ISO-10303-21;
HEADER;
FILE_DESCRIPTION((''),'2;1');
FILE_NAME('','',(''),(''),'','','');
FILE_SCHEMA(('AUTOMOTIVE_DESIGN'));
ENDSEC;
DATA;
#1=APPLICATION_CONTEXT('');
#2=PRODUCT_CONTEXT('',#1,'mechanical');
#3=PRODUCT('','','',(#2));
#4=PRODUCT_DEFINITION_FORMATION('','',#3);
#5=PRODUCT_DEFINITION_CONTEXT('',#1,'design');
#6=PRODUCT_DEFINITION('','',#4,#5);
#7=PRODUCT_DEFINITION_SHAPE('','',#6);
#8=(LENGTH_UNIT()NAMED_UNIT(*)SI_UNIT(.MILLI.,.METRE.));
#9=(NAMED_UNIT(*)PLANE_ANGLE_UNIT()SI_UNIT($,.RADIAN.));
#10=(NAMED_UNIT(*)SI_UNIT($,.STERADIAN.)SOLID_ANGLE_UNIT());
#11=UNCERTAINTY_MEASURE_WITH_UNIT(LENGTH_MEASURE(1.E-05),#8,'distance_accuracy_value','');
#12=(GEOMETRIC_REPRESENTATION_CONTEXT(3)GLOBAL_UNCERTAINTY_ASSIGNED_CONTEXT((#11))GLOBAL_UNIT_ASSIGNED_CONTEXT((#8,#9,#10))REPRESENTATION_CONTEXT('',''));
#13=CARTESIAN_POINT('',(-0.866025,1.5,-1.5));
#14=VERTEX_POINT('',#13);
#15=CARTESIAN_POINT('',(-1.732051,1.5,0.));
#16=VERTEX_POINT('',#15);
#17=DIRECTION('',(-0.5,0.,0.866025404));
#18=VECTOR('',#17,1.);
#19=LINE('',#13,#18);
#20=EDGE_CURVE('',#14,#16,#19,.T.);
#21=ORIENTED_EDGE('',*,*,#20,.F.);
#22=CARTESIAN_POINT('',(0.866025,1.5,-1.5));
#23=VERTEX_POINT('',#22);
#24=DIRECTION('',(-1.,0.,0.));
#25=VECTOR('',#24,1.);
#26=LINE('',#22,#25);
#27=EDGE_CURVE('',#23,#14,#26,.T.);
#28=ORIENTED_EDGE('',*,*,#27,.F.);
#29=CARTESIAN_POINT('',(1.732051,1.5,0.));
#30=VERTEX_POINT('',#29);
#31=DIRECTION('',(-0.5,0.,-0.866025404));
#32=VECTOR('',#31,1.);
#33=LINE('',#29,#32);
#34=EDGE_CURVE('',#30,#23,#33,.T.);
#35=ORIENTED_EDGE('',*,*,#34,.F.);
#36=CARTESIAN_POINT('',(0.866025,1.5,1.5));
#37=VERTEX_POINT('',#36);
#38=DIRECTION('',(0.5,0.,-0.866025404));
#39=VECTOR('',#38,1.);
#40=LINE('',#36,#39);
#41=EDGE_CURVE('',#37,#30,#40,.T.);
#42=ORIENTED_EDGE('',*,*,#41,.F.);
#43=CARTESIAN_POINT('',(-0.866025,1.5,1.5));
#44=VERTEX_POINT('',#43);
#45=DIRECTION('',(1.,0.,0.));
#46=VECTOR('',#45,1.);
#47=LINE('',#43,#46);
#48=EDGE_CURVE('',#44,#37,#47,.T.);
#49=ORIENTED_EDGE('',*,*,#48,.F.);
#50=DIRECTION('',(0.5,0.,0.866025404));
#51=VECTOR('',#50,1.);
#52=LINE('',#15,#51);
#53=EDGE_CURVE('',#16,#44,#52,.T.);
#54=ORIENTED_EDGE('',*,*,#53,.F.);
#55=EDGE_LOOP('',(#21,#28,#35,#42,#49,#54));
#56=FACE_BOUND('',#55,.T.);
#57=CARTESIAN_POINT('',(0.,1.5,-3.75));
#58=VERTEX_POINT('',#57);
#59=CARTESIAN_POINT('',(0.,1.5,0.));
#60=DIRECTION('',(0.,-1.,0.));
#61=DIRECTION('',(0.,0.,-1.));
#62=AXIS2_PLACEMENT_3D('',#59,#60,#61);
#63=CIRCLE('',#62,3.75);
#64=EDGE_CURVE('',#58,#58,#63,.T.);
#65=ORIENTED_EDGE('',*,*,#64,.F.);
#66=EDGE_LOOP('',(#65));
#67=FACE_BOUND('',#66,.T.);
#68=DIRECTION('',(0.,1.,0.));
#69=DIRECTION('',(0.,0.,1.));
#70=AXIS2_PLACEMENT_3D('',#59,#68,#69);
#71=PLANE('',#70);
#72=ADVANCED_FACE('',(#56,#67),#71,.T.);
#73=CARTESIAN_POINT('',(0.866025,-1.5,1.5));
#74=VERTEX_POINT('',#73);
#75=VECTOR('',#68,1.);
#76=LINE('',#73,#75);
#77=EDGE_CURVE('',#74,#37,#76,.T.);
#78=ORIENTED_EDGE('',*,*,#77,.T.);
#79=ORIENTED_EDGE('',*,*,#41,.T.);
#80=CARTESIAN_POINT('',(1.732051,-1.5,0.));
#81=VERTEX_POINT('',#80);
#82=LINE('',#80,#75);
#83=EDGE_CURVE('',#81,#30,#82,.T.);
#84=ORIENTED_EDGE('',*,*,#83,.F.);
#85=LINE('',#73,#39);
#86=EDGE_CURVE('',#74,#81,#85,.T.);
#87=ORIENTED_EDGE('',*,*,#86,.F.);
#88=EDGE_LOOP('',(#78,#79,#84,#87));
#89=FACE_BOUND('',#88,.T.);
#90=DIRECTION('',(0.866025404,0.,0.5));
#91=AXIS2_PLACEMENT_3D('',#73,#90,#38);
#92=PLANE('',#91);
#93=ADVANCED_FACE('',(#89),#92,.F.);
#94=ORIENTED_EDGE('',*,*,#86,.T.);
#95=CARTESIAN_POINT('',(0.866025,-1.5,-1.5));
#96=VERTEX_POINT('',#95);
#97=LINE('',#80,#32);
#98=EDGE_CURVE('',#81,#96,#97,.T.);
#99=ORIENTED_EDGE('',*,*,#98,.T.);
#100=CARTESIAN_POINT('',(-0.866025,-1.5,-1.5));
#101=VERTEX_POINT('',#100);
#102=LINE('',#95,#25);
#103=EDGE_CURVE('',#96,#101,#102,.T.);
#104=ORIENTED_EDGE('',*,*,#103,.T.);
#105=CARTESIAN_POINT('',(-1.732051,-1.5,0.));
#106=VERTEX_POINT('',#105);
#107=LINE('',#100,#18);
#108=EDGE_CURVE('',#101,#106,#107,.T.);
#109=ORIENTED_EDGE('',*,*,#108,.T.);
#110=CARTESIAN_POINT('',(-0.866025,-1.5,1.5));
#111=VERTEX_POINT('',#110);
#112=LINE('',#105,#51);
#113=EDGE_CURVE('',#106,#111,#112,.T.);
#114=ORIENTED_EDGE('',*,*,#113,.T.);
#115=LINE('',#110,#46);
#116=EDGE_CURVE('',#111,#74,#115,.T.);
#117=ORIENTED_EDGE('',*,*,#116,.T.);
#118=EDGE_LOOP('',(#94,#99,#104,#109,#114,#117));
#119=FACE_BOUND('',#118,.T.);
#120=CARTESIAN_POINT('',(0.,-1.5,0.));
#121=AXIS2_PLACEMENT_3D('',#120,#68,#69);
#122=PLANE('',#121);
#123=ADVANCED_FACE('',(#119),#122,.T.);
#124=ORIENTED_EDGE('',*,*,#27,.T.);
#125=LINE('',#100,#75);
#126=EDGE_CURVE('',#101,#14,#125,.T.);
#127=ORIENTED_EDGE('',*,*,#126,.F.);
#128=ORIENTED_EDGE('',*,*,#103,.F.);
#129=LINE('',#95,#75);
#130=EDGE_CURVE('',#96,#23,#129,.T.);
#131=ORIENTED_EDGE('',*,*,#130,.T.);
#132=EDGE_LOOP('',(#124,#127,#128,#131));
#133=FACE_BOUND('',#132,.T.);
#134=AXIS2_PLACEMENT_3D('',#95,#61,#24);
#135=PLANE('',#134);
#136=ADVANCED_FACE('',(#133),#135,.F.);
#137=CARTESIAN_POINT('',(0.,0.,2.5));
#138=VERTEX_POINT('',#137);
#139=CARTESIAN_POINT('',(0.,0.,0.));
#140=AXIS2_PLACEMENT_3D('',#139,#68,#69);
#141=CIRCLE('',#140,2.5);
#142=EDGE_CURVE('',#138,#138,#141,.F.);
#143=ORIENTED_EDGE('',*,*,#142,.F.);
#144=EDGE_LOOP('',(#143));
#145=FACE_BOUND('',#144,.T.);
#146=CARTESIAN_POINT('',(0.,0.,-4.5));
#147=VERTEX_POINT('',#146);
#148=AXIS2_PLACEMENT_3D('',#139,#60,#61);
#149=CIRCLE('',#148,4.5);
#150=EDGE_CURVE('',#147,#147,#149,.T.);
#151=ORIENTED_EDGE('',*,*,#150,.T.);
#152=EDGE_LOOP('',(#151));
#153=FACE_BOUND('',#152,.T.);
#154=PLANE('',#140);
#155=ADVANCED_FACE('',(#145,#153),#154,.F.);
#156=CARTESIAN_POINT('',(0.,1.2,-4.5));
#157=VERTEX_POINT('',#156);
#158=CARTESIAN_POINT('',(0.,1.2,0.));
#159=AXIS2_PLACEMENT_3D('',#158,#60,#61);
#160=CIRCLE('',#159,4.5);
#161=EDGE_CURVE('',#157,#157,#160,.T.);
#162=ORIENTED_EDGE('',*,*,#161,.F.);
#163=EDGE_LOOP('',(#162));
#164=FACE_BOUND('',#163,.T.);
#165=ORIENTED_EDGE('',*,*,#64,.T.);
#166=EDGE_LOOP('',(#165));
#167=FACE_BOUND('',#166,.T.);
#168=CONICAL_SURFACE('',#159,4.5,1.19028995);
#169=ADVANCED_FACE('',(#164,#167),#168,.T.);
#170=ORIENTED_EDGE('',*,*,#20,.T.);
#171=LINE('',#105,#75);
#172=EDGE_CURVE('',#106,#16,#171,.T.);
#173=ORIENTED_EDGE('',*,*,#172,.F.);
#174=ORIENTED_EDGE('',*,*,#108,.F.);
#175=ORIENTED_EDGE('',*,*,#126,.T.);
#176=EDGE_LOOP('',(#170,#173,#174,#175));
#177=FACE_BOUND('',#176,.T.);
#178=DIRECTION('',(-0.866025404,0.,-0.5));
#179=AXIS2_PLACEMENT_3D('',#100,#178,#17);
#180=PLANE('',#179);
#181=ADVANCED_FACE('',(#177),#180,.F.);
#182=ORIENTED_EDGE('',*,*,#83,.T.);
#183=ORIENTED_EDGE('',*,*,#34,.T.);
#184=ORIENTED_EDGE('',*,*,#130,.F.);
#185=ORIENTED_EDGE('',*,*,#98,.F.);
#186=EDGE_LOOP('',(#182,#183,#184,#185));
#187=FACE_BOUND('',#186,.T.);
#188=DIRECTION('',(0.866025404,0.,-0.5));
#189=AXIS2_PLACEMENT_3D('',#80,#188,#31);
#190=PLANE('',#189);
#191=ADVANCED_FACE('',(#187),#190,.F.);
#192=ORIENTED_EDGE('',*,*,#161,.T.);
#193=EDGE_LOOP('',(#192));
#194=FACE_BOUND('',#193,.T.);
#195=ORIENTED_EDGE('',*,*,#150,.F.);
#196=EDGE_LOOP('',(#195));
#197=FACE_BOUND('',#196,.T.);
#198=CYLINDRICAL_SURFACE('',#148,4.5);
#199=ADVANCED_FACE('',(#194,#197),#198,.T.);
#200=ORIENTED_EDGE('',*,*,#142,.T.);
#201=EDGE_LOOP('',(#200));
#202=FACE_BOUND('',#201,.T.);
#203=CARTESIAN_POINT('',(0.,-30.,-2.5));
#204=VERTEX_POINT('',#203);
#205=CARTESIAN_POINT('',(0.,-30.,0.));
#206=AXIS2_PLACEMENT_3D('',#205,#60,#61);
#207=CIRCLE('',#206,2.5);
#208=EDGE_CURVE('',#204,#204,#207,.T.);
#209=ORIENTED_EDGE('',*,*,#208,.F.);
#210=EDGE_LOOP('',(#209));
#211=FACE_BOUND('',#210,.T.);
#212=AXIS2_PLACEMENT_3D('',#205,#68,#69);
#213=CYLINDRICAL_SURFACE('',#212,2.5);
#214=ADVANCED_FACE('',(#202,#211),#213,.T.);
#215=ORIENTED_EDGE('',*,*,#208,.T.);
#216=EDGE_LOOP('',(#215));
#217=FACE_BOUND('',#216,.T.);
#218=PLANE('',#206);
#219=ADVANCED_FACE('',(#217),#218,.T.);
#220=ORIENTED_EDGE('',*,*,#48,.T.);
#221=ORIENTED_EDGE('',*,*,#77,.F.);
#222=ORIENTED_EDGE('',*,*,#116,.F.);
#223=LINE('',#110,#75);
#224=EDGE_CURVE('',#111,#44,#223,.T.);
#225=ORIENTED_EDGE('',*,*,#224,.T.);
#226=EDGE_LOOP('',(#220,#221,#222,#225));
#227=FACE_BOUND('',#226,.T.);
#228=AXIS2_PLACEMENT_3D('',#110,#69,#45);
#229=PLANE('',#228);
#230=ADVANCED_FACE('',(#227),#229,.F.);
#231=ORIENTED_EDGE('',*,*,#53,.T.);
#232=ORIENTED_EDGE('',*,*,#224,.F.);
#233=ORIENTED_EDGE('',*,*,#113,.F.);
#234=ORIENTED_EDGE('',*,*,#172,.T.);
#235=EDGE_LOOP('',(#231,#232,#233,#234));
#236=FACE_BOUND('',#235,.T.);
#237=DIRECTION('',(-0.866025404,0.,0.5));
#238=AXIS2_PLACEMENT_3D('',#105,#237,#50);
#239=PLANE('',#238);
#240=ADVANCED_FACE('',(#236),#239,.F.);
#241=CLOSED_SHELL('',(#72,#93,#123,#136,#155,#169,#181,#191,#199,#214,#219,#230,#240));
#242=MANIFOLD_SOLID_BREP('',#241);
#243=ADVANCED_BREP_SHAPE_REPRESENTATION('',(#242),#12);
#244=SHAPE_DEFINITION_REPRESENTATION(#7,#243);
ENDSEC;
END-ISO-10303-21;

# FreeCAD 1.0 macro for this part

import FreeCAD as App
import Part
import Sketcher
from FreeCAD import Vector
Q = App.Units.Quantity


def add_polygon(sketch, points):
    """Adds a closed chain of lines whose ends are joined by coincident constraints."""
    first, n = sketch.GeometryCount, len(points)
    for a, b in zip(points, points[1:] + points[:1]):
        sketch.addGeometry(Part.LineSegment(App.Vector(*a, 0), App.Vector(*b, 0)), False)
    for i in range(n):
        sketch.addConstraint(Sketcher.Constraint("Coincident", first + i, 2, first + (i + 1) % n, 1))

doc = App.newDocument("Part")
body = doc.addObject("PartDesign::Body", "Body")

# Sketch on XY plane
sketch1 = body.newObject("Sketcher::SketchObject", "Sketch")
sketch1.AttachmentSupport = (doc.getObject("XY_Plane"), [""])
sketch1.MapMode = "FlatFace"
add_polygon(sketch1, [(0, 0), (0, 1.5), (-3.8, 1.5), (-4.5, 1.2), (-4.5, 0)])  # lines 0-4
sketch1.addConstraint([
    Sketcher.Constraint("Vertical", 0),
    Sketcher.Constraint("Horizontal", 1),
    Sketcher.Constraint("Vertical", 3),
    Sketcher.Constraint("Horizontal", 4),
    Sketcher.Constraint("Coincident", 4, 2, -1, 1),
    Sketcher.Constraint("DistanceX", 4, 1, 4, 2, Q("4.5 mm")),
    Sketcher.Constraint("DistanceY", 0, 1, 0, 2, Q("1.5 mm")),
    Sketcher.Constraint("DistanceY", 3, 2, 3, 1, Q("1.2 mm")),
    Sketcher.Constraint("DistanceX", 1, 2, 1, 1, Q("3.75 mm")),
])
revolution = body.newObject("PartDesign::Revolution", "Revolution")
revolution.Profile = sketch1
revolution.ReferenceAxis = (sketch1, ["V_Axis"])
revolution.Angle = 360

# Sketch on XZ plane
sketch2 = body.newObject("Sketcher::SketchObject", "Sketch001")
sketch2.AttachmentSupport = (doc.getObject("XZ_Plane"), [""])
sketch2.MapMode = "FlatFace"
sketch2.addGeometry(Part.Circle(Vector(0, 0, 0), Vector(0, 0, 1), 2.5), False)
sketch2.addConstraint([
    Sketcher.Constraint("Coincident", 0, 3, -1, 1),
    Sketcher.Constraint("Diameter", 0, Q("5 mm")),
])
pad1 = body.newObject("PartDesign::Pad", "Pad")
pad1.Profile = sketch2
pad1.Length = 30

# Sketch on XZ plane
sketch3 = body.newObject("Sketcher::SketchObject", "Sketch002")
sketch3.AttachmentSupport = (doc.getObject("XZ_Plane"), [""])
sketch3.MapMode = "FlatFace"
sketch3.AttachmentOffset = App.Placement(Vector(0, 0, -1.5), App.Rotation())
add_polygon(sketch3, [(1.7, 0), (0.9, -1.5), (-0.9, -1.5), (-1.7, 0), (-0.9, 1.5), (0.9, 1.5)])  # lines 0-5
sketch3.addConstraint([
    Sketcher.Constraint("Horizontal", 1),
    Sketcher.Constraint("Horizontal", 4),
    Sketcher.Constraint("Symmetric", 0, 2, 3, 2, -1, 1),
    Sketcher.Constraint("Symmetric", 2, 2, 5, 2, -1, 1),
    Sketcher.Constraint("PointOnObject", 2, 2, -1),
    Sketcher.Constraint("Parallel", 2, 5),
    Sketcher.Constraint("Vertical", 1, 2, 3, 2),
    Sketcher.Constraint("Angle", 0, Q("-120 deg")),
    Sketcher.Constraint("DistanceY", 1, 2, 3, 2, Q("3 mm")),
    Sketcher.Constraint("DistanceX", 1, 2, 1, 1, Q("1.732051 mm")),
])
pocket1 = body.newObject("PartDesign::Pocket", "Pocket")
pocket1.Profile = sketch3
pocket1.Length = 3
pocket1.Reversed = True

doc.recompute()
